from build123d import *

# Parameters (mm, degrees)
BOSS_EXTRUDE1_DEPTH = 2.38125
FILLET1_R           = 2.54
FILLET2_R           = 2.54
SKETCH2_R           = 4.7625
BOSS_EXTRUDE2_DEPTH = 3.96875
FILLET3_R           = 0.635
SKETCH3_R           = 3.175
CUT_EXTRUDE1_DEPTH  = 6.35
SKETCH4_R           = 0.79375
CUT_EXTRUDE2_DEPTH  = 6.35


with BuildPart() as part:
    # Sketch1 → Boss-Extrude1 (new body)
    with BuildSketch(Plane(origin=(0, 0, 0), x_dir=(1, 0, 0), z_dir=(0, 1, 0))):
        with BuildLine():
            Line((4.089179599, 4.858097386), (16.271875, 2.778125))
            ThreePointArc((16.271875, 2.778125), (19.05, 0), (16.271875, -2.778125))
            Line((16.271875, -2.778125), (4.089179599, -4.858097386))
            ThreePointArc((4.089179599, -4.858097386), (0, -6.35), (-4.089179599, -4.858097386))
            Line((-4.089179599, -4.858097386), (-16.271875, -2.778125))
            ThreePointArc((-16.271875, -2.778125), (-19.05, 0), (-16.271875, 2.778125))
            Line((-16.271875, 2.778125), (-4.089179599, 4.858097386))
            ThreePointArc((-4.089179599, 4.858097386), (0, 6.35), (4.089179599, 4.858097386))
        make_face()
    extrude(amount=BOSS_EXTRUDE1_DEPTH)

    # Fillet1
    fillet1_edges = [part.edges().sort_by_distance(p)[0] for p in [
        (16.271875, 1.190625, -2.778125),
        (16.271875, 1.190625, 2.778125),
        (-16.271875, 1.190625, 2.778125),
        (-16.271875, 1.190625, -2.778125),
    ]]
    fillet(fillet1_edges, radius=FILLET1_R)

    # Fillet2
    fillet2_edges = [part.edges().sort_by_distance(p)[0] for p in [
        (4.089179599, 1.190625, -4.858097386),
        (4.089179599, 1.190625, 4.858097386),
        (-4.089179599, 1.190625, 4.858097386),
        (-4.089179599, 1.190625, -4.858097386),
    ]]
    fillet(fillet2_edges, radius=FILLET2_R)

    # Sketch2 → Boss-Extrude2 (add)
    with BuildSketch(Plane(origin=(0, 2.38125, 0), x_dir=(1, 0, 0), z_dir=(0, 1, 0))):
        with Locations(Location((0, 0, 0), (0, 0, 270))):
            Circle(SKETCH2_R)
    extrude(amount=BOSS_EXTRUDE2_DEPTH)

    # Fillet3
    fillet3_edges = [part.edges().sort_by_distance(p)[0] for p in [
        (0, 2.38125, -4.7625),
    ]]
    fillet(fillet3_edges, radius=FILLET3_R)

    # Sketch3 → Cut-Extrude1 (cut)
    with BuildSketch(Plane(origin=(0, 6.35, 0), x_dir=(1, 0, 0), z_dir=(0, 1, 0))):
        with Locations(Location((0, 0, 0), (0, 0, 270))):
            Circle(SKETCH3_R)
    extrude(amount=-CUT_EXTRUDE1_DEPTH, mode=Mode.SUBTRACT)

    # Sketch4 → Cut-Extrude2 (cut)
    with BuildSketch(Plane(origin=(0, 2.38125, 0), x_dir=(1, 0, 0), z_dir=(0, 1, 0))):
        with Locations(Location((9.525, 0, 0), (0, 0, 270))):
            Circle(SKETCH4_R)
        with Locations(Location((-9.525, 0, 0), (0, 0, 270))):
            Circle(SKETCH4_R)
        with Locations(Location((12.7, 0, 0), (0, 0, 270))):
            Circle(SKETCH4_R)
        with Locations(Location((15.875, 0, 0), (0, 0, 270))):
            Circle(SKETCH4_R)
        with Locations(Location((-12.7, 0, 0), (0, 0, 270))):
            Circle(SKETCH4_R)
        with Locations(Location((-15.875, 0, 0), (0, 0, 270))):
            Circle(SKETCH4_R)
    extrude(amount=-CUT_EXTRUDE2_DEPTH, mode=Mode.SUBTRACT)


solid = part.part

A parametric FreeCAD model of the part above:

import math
import FreeCAD as App
import Part
import Sketcher

V = App.Vector
Q = App.Units.Quantity


def edges_at(feature, points):
    """Names of the edges that pass closest to the given points."""
    edges = feature.Shape.Edges
    near = lambda p: min(range(len(edges)), key=lambda i: edges[i].distToShape(Part.Vertex(*p))[0])
    return sorted({f"Edge{near(p) + 1}" for p in points})

doc = App.newDocument("Part")
body = doc.addObject("PartDesign::Body", "Body")

sketch1 = body.newObject("Sketcher::SketchObject", "Sketch")
sketch1.AttachmentSupport = (doc.getObject("XZ_Plane"), [""])
sketch1.MapMode = "FlatFace"
sketch1.addGeometry([
    Part.LineSegment(V(16.3, -2.8, 0), V(4.1, -4.9, 0)),
    Part.ArcOfCircle(Part.Circle(V(0, 0, 0), V(0, 0, 1), 6.4), math.radians(-130), math.radians(-50)),
    Part.LineSegment(V(-4.1, -4.9, 0), V(-16.3, -2.8, 0)),
    Part.ArcOfCircle(Part.Circle(V(-16.3, 0, 0), V(0, 0, 1), 2.8), math.radians(90), math.radians(270)),
    Part.LineSegment(V(-16.3, 2.8, 0), V(-4.1, 4.9, 0)),
    Part.ArcOfCircle(Part.Circle(V(0, 0, 0), V(0, 0, 1), 6.4), math.radians(50), math.radians(130)),
    Part.LineSegment(V(4.1, 4.9, 0), V(16.3, 2.8, 0)),
    Part.ArcOfCircle(Part.Circle(V(16.3, 0, 0), V(0, 0, 1), 2.8), math.radians(-90), math.radians(90)),
], False)
sketch1.addConstraint([
    Sketcher.Constraint("Coincident", 0, 2, 1, 2),
    Sketcher.Constraint("Coincident", 1, 1, 2, 1),
    Sketcher.Constraint("Coincident", 2, 2, 3, 2),
    Sketcher.Constraint("Coincident", 3, 1, 4, 1),
    Sketcher.Constraint("Coincident", 4, 2, 5, 2),
    Sketcher.Constraint("Coincident", 5, 1, 6, 1),
    Sketcher.Constraint("Coincident", 6, 2, 7, 2),
    Sketcher.Constraint("Coincident", 7, 1, 0, 1),
    Sketcher.Constraint("Coincident", 1, 3, -1, 1),
    Sketcher.Constraint("Coincident", 5, 3, -1, 1),
    Sketcher.Constraint("Equal", 1, 5),
    Sketcher.Constraint("Equal", 3, 7),
    Sketcher.Constraint("Symmetric", 3, 3, 7, 3, -1, 1),
    Sketcher.Constraint("Symmetric", 3, 1, 6, 2, -2),
    Sketcher.Constraint("Parallel", 0, 4),
    Sketcher.Constraint("Parallel", 2, 6),
    Sketcher.Constraint("Horizontal", 0, 2, 1, 1),
    Sketcher.Constraint("Horizontal", 4, 2, 5, 1),
    Sketcher.Constraint("Vertical", 3, 3, 2, 2),
    Sketcher.Constraint("Vertical", 2, 2, 3, 1),
    Sketcher.Constraint("Radius", 1, Q("0.25 in")),
    Sketcher.Constraint("Radius", 3, Q("0.109375 in")),
    Sketcher.Constraint("DistanceX", 3, 3, -1, 1, Q("0.640625 in")),
    Sketcher.Constraint("Distance", 0, Q("12.358979 mm")),
])
pad1 = body.newObject("PartDesign::Pad", "Pad")
pad1.Profile = sketch1
pad1.Length = Q("0.09375 in")
pad1.Reversed = True
doc.recompute()

fillet = body.newObject("PartDesign::Fillet", "Fillet")
fillet.Base = (pad1, edges_at(pad1, [
    (16.272, 1.191, -2.778),
    (16.272, 1.191, 2.778),
    (-16.272, 1.191, 2.778),
    (-16.272, 1.191, -2.778),
]))
fillet.Radius = Q("0.1 in")
doc.recompute()

fillet2 = body.newObject("PartDesign::Fillet", "Fillet001")
fillet2.Base = (fillet, edges_at(fillet, [
    (4.089, 1.191, -4.858),
    (4.089, 1.191, 4.858),
    (-4.089, 1.191, 4.858),
    (-4.089, 1.191, -4.858),
]))
fillet2.Radius = Q("0.1 in")

sketch2 = body.newObject("Sketcher::SketchObject", "Sketch001")
sketch2.AttachmentSupport = (doc.getObject("XZ_Plane"), [""])
sketch2.MapMode = "FlatFace"
sketch2.AttachmentOffset = App.Placement(V(0, 0, -0.09375 * 25.4), App.Rotation())
sketch2.addGeometry(Part.Circle(V(0, 0, 0), V(0, 0, 1), 4.8), False)
sketch2.addConstraint([
    Sketcher.Constraint("Coincident", 0, 3, -1, 1),
    Sketcher.Constraint("Diameter", 0, Q("0.375 in")),
])
pad2 = body.newObject("PartDesign::Pad", "Pad001")
pad2.Profile = sketch2
pad2.Length = Q("0.15625 in")
pad2.Reversed = True
doc.recompute()

fillet3 = body.newObject("PartDesign::Fillet", "Fillet002")
fillet3.Base = (pad2, edges_at(pad2, [(0, 2.381, -4.763)]))
fillet3.Radius = Q("0.025 in")

sketch3 = body.newObject("Sketcher::SketchObject", "Sketch002")
sketch3.AttachmentSupport = (doc.getObject("XZ_Plane"), [""])
sketch3.MapMode = "FlatFace"
sketch3.AttachmentOffset = App.Placement(V(0, 0, -0.25 * 25.4), App.Rotation())
sketch3.addGeometry(Part.Circle(V(0, 0, 0), V(0, 0, 1), 3.2), False)
sketch3.addConstraint([
    Sketcher.Constraint("Coincident", 0, 3, -1, 1),
    Sketcher.Constraint("Diameter", 0, Q("0.25 in")),
])
pocket1 = body.newObject("PartDesign::Pocket", "Pocket")
pocket1.Profile = sketch3
pocket1.Length = Q("0.25 in")
pocket1.Reversed = True

sketch4 = body.newObject("Sketcher::SketchObject", "Sketch003")
sketch4.AttachmentSupport = (doc.getObject("XZ_Plane"), [""])
sketch4.MapMode = "FlatFace"
sketch4.AttachmentOffset = App.Placement(V(0, 0, -0.09375 * 25.4), App.Rotation())
sketch4.addGeometry([
    Part.Circle(V(9.5, 0, 0), V(0, 0, 1), 0.8),
    Part.Circle(V(-9.5, 0, 0), V(0, 0, 1), 0.8),
    Part.Circle(V(12.7, 0, 0), V(0, 0, 1), 0.8),
    Part.Circle(V(15.9, 0, 0), V(0, 0, 1), 0.8),
    Part.Circle(V(-12.7, 0, 0), V(0, 0, 1), 0.8),
    Part.Circle(V(-15.9, 0, 0), V(0, 0, 1), 0.8),
], False)
sketch4.addConstraint([
    Sketcher.Constraint("Equal", 0, 1),
    Sketcher.Constraint("Equal", 1, 2),
    Sketcher.Constraint("Equal", 2, 3),
    Sketcher.Constraint("Equal", 3, 4),
    Sketcher.Constraint("Equal", 4, 5),
    Sketcher.Constraint("Symmetric", 0, 3, 1, 3, -1, 1),
    Sketcher.Constraint("Symmetric", 2, 3, 4, 3, -1, 1),
    Sketcher.Constraint("Symmetric", 3, 3, 5, 3, -1, 1),
    Sketcher.Constraint("PointOnObject", 0, 3, -1),
    Sketcher.Constraint("PointOnObject", 2, 3, -1),
    Sketcher.Constraint("PointOnObject", 3, 3, -1),
    Sketcher.Constraint("Diameter", 0, Q("0.0625 in")),
    Sketcher.Constraint("DistanceX", 1, 3, 3, 3, Q("1 in")),
    Sketcher.Constraint("DistanceX", 4, 3, 2, 3, Q("1 in")),
    Sketcher.Constraint("DistanceX", 1, 3, 0, 3, Q("0.75 in")),
])
pocket2 = body.newObject("PartDesign::Pocket", "Pocket001")
pocket2.Profile = sketch4
pocket2.Length = Q("0.25 in")
pocket2.Reversed = True

doc.recompute()
